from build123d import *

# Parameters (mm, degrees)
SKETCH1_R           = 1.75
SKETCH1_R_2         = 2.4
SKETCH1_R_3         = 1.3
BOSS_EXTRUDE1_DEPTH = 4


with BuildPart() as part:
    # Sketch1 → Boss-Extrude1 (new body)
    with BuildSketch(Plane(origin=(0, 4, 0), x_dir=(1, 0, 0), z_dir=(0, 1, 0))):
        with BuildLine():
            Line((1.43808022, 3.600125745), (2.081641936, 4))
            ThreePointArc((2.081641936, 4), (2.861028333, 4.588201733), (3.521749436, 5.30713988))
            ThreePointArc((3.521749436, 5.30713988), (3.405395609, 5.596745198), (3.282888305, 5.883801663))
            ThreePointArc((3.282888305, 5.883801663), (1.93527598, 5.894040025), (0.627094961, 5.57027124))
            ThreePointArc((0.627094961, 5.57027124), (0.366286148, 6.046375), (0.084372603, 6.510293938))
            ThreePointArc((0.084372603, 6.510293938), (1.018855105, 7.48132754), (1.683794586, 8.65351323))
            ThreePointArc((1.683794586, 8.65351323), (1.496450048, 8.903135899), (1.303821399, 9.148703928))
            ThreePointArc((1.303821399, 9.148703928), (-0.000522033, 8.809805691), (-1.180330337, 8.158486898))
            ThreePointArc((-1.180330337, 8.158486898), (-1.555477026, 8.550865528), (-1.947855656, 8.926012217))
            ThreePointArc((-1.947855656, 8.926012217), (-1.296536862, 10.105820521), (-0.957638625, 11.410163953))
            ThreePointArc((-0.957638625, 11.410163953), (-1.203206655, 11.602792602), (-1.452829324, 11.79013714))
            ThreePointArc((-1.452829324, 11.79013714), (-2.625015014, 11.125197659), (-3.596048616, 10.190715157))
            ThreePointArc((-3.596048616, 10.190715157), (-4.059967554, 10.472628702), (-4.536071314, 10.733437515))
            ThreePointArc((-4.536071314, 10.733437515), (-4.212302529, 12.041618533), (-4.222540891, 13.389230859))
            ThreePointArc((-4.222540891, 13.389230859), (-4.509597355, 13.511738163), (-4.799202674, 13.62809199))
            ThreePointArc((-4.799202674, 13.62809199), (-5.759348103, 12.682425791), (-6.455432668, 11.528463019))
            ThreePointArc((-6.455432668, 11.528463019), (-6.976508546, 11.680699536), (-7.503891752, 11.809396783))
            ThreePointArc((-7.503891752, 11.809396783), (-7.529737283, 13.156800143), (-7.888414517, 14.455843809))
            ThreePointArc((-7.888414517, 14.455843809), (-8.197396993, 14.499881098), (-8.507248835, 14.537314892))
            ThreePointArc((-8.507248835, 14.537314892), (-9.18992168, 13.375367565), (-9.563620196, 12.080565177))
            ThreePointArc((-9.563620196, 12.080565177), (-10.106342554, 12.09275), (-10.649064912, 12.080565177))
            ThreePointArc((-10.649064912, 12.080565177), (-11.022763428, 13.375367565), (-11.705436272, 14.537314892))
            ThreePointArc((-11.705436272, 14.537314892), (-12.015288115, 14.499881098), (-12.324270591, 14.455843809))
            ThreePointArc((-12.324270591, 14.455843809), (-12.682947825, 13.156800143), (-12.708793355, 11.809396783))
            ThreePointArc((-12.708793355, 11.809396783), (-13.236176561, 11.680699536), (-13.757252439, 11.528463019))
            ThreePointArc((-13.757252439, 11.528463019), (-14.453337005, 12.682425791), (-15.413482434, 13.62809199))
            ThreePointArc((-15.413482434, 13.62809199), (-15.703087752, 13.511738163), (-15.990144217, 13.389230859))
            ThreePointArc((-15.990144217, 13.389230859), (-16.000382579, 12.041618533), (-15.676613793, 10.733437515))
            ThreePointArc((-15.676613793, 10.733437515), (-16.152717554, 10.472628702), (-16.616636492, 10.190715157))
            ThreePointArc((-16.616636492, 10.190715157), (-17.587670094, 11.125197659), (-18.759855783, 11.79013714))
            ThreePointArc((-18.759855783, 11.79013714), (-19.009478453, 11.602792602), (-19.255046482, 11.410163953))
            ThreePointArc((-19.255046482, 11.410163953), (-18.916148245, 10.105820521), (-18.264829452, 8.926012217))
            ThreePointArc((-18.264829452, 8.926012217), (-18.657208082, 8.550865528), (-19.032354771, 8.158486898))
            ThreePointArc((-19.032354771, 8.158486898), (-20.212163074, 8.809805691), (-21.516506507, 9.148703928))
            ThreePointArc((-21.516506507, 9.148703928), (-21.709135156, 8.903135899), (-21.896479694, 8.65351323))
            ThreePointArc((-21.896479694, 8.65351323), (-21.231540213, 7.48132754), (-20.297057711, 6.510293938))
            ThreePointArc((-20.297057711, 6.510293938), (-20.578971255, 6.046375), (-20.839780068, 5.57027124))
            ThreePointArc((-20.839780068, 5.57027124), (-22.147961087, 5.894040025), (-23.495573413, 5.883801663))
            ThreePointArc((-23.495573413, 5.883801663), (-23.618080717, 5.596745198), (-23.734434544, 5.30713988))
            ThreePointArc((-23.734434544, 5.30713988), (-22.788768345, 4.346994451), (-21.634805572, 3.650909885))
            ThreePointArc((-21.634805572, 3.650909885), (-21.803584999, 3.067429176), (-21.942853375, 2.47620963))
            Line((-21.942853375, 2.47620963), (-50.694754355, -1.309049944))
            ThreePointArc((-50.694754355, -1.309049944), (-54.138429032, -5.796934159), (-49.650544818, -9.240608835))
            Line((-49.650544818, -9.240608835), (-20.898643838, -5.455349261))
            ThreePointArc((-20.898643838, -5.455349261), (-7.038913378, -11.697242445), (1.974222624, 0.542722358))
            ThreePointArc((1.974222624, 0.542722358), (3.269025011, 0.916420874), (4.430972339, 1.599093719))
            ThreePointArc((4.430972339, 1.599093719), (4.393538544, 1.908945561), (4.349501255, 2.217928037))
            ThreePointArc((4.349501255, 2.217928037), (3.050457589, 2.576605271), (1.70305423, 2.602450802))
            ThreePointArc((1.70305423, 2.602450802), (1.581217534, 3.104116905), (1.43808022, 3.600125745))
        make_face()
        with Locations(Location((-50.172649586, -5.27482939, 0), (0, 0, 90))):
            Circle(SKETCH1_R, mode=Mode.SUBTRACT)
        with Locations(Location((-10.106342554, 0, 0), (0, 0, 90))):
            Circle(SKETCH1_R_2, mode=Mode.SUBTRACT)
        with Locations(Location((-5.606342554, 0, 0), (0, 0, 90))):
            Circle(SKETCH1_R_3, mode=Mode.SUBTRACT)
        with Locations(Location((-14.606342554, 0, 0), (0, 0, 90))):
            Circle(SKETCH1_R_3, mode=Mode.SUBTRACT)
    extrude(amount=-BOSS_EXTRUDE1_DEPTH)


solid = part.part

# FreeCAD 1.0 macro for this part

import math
import FreeCAD as App
import Part
import Sketcher

V = App.Vector
Q = App.Units.Quantity

doc = App.newDocument("Part")
body = doc.addObject("PartDesign::Body", "Body")

# Sketch on XZ plane
sketch1 = doc.addObject("Sketcher::SketchObject", "Sketch")
body.addObject(sketch1)
sketch1.AttachmentSupport = (doc.XZ_Plane, [""])
sketch1.MapMode = "FlatFace"
sketch1.AttachmentOffset = App.Placement(V(0, 0, -4), App.Rotation())
sketch1.addGeometry(Part.LineSegment(V(1.43808, -3.600126, 0), V(2.081642, -4, 0)), False)
sketch1.addGeometry(Part.ArcOfCircle(Part.Circle(V(-0.768289, -8.586708, 0), V(0, 0, 1), 5.4), math.radians(37.396512), math.radians(58.14543)), False)
sketch1.addGeometry(Part.ArcOfCircle(Part.Circle(V(-10.106343, 0, 0), V(0, 0, 1), 14.625), math.radians(-23.722744), math.radians(-21.277256)), False)
sketch1.addGeometry(Part.ArcOfCircle(Part.Circle(V(2.568378, -0.531281, 0), V(0, 0, 1), 5.4), math.radians(-111.069299), math.radians(-82.396512)), False)
sketch1.addGeometry(Part.ArcOfCircle(Part.Circle(V(-10.106343, 0, 0), V(0, 0, 1), 12.09275), math.radians(-32.572297), math.radians(-27.427703)), False)
sketch1.addGeometry(Part.ArcOfCircle(Part.Circle(V(-3.308879, -10.710989, 0), V(0, 0, 1), 5.4), math.radians(22.396512), math.radians(51.069299)), False)
sketch1.addGeometry(Part.ArcOfCircle(Part.Circle(V(-10.106342, 0, 0), V(0, 0, 1), 14.625), math.radians(-38.722744), math.radians(-36.277256)), False)
sketch1.addGeometry(Part.ArcOfCircle(Part.Circle(V(1.998992, -3.793637, 0), V(0, 0, 1), 5.4), math.radians(-126.069299), math.radians(-97.396512)), False)
sketch1.addGeometry(Part.ArcOfCircle(Part.Circle(V(-10.106343, 0, 0), V(0, 0, 1), 12.09275), math.radians(-47.572297), math.radians(-42.427703)), False)
sketch1.addGeometry(Part.ArcOfCircle(Part.Circle(V(-6.312705, -12.105334, 0), V(0, 0, 1), 5.4), math.radians(7.396512), math.radians(36.069299)), False)
sketch1.addGeometry(Part.ArcOfCircle(Part.Circle(V(-10.106343, 0.000001, 0), V(0, 0, 1), 14.625001), math.radians(-53.722744), math.radians(-51.277256)), False)
sketch1.addGeometry(Part.ArcOfCircle(Part.Circle(V(0.604647, -6.797463, 0), V(0, 0, 1), 5.4), math.radians(-141.069299), math.radians(-112.396512)), False)
sketch1.addGeometry(Part.ArcOfCircle(Part.Circle(V(-10.106343, 0, 0), V(0, 0, 1), 12.09275), math.radians(-62.572297), math.radians(-57.427703)), False)
sketch1.addGeometry(Part.ArcOfCircle(Part.Circle(V(-9.575061, -12.674721, 0), V(0, 0, 1), 5.4), math.radians(-7.603488), math.radians(21.069299)), False)
sketch1.addGeometry(Part.ArcOfCircle(Part.Circle(V(-10.106342, -0.000001, 0), V(0, 0, 1), 14.624999), math.radians(-68.722744), math.radians(-66.277256)), False)
sketch1.addGeometry(Part.ArcOfCircle(Part.Circle(V(-1.519634, -9.338053, 0), V(0, 0, 1), 5.4), math.radians(-156.069299), math.radians(-127.396512)), False)
sketch1.addGeometry(Part.ArcOfCircle(Part.Circle(V(-10.106343, 0, 0), V(0, 0, 1), 12.09275), math.radians(-77.572297), math.radians(-72.427703)), False)
sketch1.addGeometry(Part.ArcOfCircle(Part.Circle(V(-12.873623, -12.380346, 0), V(0, 0, 1), 5.4), math.radians(-22.603488), math.radians(6.069299)), False)
sketch1.addGeometry(Part.ArcOfCircle(Part.Circle(V(-10.106342, -0.000002, 0), V(0, 0, 1), 14.624998), math.radians(-83.722744), math.radians(-81.277256)), False)
sketch1.addGeometry(Part.ArcOfCircle(Part.Circle(V(-4.229085, -11.242271, 0), V(0, 0, 1), 5.4), math.radians(-171.069299), math.radians(-142.396512)), False)
sketch1.addGeometry(Part.ArcOfCircle(Part.Circle(V(-10.106343, 0, 0), V(0, 0, 1), 12.09275), math.radians(-92.572297), math.radians(-87.427703)), False)
sketch1.addGeometry(Part.ArcOfCircle(Part.Circle(V(-15.9836, -11.242271, 0), V(0, 0, 1), 5.4), math.radians(-37.603488), math.radians(-8.930701)), False)
sketch1.addGeometry(Part.ArcOfCircle(Part.Circle(V(-10.106343, -0.000002, 0), V(0, 0, 1), 14.624998), math.radians(-98.722744), math.radians(-96.277256)), False)
sketch1.addGeometry(Part.ArcOfCircle(Part.Circle(V(-7.339062, -12.380346, 0), V(0, 0, 1), 5.4), math.radians(173.930701), math.radians(202.603488)), False)
sketch1.addGeometry(Part.ArcOfCircle(Part.Circle(V(-10.106343, 0, 0), V(0, 0, 1), 12.09275), math.radians(-107.572297), math.radians(-102.427703)), False)
sketch1.addGeometry(Part.ArcOfCircle(Part.Circle(V(-18.693051, -9.338053, 0), V(0, 0, 1), 5.4), math.radians(-52.603488), math.radians(-23.930701)), False)
sketch1.addGeometry(Part.ArcOfCircle(Part.Circle(V(-10.106342, 0, 0), V(0, 0, 1), 14.625), math.radians(-113.722744), math.radians(-111.277256)), False)
sketch1.addGeometry(Part.ArcOfCircle(Part.Circle(V(-10.637624, -12.674721, 0), V(0, 0, 1), 5.4), math.radians(158.930701), math.radians(187.603488)), False)
sketch1.addGeometry(Part.ArcOfCircle(Part.Circle(V(-10.106343, 0, 0), V(0, 0, 1), 12.09275), math.radians(-122.572297), math.radians(-117.427703)), False)
sketch1.addGeometry(Part.ArcOfCircle(Part.Circle(V(-20.817332, -6.797463, 0), V(0, 0, 1), 5.4), math.radians(-67.603488), math.radians(-38.930701)), False)
sketch1.addGeometry(Part.ArcOfCircle(Part.Circle(V(-10.106344, -0.000001, 0), V(0, 0, 1), 14.624998), math.radians(-128.722744), math.radians(-126.277256)), False)
sketch1.addGeometry(Part.ArcOfCircle(Part.Circle(V(-13.89998, -12.105334, 0), V(0, 0, 1), 5.4), math.radians(143.930701), math.radians(172.603488)), False)
sketch1.addGeometry(Part.ArcOfCircle(Part.Circle(V(-10.106342, 0, 0), V(0, 0, 1), 12.09275), math.radians(-137.572297), math.radians(-132.427703)), False)
sketch1.addGeometry(Part.ArcOfCircle(Part.Circle(V(-22.211677, -3.793637, 0), V(0, 0, 1), 5.4), math.radians(-82.603488), math.radians(-53.930701)), False)
sketch1.addGeometry(Part.ArcOfCircle(Part.Circle(V(-10.106343, 0, 0), V(0, 0, 1), 14.625), math.radians(-143.722744), math.radians(-141.277256)), False)
sketch1.addGeometry(Part.ArcOfCircle(Part.Circle(V(-16.903806, -10.710989, 0), V(0, 0, 1), 5.4), math.radians(128.930701), math.radians(157.603488)), False)
sketch1.addGeometry(Part.ArcOfCircle(Part.Circle(V(-10.106342, 0, 0), V(0, 0, 1), 12.092751), math.radians(-152.572297), math.radians(-147.427703)), False)
sketch1.addGeometry(Part.ArcOfCircle(Part.Circle(V(-22.781063, -0.531281, 0), V(0, 0, 1), 5.4), math.radians(-97.603488), math.radians(-68.930701)), False)
sketch1.addGeometry(Part.ArcOfCircle(Part.Circle(V(-10.106342, 0, 0), V(0, 0, 1), 14.625), math.radians(-158.722744), math.radians(-156.277256)), False)
sketch1.addGeometry(Part.ArcOfCircle(Part.Circle(V(-19.444396, -8.586708, 0), V(0, 0, 1), 5.4), math.radians(113.930701), math.radians(142.603488)), False)
sketch1.addGeometry(Part.ArcOfCircle(Part.Circle(V(-10.106343, 0, 0), V(0, 0, 1), 12.092749), math.radians(-168.184075), math.radians(-162.427702)), False)
sketch1.addGeometry(Part.LineSegment(V(-21.942853, -2.47621, 0), V(-50.694754, 1.30905, 0)), False)
sketch1.addGeometry(Part.ArcOfCircle(Part.Circle(V(-50.17265, 5.274829, 0), V(0, 0, 1), 4), math.radians(82.5), math.radians(262.5)), False)
sketch1.addGeometry(Part.LineSegment(V(-49.650545, 9.240609, 0), V(-20.898644, 5.455349, 0)), False)
sketch1.addGeometry(Part.ArcOfCircle(Part.Circle(V(-10.106343, 0, 0), V(0, 0, 1), 12.09275), math.radians(-2.572297), math.radians(153.184075)), False)
sketch1.addGeometry(Part.ArcOfCircle(Part.Circle(V(1.135928, -5.877257, 0), V(0, 0, 1), 5.4), math.radians(52.396512), math.radians(81.069299)), False)
sketch1.addGeometry(Part.ArcOfCircle(Part.Circle(V(-10.106343, 0, 0), V(0, 0, 1), 14.625), math.radians(-8.722744), math.radians(-6.277256)), False)
sketch1.addGeometry(Part.ArcOfCircle(Part.Circle(V(2.274003, 2.767281, 0), V(0, 0, 1), 5.4), math.radians(-96.069299), math.radians(-67.396512)), False)
sketch1.addGeometry(Part.ArcOfCircle(Part.Circle(V(-10.106343, 0, 0), V(0, 0, 1), 12.09275), math.radians(-17.320078), math.radians(-12.427703)), False)
sketch1.addGeometry(Part.Circle(V(-50.17265, 5.274829, 0), V(0, 0, 1), 1.75), False)
sketch1.addGeometry(Part.Circle(V(-14.606343, 0, 0), V(0, 0, 1), 1.3), False)
sketch1.addGeometry(Part.Circle(V(-10.106343, 0, 0), V(0, 0, 1), 2.4), False)
sketch1.addGeometry(Part.Circle(V(-5.606343, 0, 0), V(0, 0, 1), 1.3), False)
sketch1.addConstraint(Sketcher.Constraint("Tangent", 0, 2, 1, 2))
sketch1.addConstraint(Sketcher.Constraint("Coincident", 1, 1, 2, 2))
sketch1.addConstraint(Sketcher.Constraint("Coincident", 2, 1, 3, 2))
sketch1.addConstraint(Sketcher.Constraint("Coincident", 3, 1, 4, 2))
sketch1.addConstraint(Sketcher.Constraint("Coincident", 4, 1, 5, 2))
sketch1.addConstraint(Sketcher.Constraint("Coincident", 5, 1, 6, 2))
sketch1.addConstraint(Sketcher.Constraint("Coincident", 6, 1, 7, 2))
sketch1.addConstraint(Sketcher.Constraint("Coincident", 7, 1, 8, 2))
sketch1.addConstraint(Sketcher.Constraint("Coincident", 8, 1, 9, 2))
sketch1.addConstraint(Sketcher.Constraint("Coincident", 9, 1, 10, 2))
sketch1.addConstraint(Sketcher.Constraint("Coincident", 10, 1, 11, 2))
sketch1.addConstraint(Sketcher.Constraint("Coincident", 11, 1, 12, 2))
sketch1.addConstraint(Sketcher.Constraint("Coincident", 12, 1, 13, 2))
sketch1.addConstraint(Sketcher.Constraint("Coincident", 13, 1, 14, 2))
sketch1.addConstraint(Sketcher.Constraint("Coincident", 14, 1, 15, 2))
sketch1.addConstraint(Sketcher.Constraint("Coincident", 15, 1, 16, 2))
sketch1.addConstraint(Sketcher.Constraint("Coincident", 16, 1, 17, 2))
sketch1.addConstraint(Sketcher.Constraint("Coincident", 17, 1, 18, 2))
sketch1.addConstraint(Sketcher.Constraint("Coincident", 18, 1, 19, 2))
sketch1.addConstraint(Sketcher.Constraint("Coincident", 19, 1, 20, 2))
sketch1.addConstraint(Sketcher.Constraint("Coincident", 20, 1, 21, 2))
sketch1.addConstraint(Sketcher.Constraint("Coincident", 21, 1, 22, 2))
sketch1.addConstraint(Sketcher.Constraint("Coincident", 22, 1, 23, 2))
sketch1.addConstraint(Sketcher.Constraint("Coincident", 23, 1, 24, 2))
sketch1.addConstraint(Sketcher.Constraint("Coincident", 24, 1, 25, 2))
sketch1.addConstraint(Sketcher.Constraint("Coincident", 25, 1, 26, 2))
sketch1.addConstraint(Sketcher.Constraint("Coincident", 26, 1, 27, 2))
sketch1.addConstraint(Sketcher.Constraint("Coincident", 27, 1, 28, 2))
sketch1.addConstraint(Sketcher.Constraint("Coincident", 28, 1, 29, 2))
sketch1.addConstraint(Sketcher.Constraint("Coincident", 29, 1, 30, 2))
sketch1.addConstraint(Sketcher.Constraint("Coincident", 30, 1, 31, 2))
sketch1.addConstraint(Sketcher.Constraint("Coincident", 31, 1, 32, 2))
sketch1.addConstraint(Sketcher.Constraint("Coincident", 32, 1, 33, 2))
sketch1.addConstraint(Sketcher.Constraint("Coincident", 33, 1, 34, 2))
sketch1.addConstraint(Sketcher.Constraint("Coincident", 34, 1, 35, 2))
sketch1.addConstraint(Sketcher.Constraint("Coincident", 35, 1, 36, 2))
sketch1.addConstraint(Sketcher.Constraint("Coincident", 36, 1, 37, 2))
sketch1.addConstraint(Sketcher.Constraint("Coincident", 37, 1, 38, 2))
sketch1.addConstraint(Sketcher.Constraint("Coincident", 38, 1, 39, 2))
sketch1.addConstraint(Sketcher.Constraint("Coincident", 39, 1, 40, 2))
sketch1.addConstraint(Sketcher.Constraint("Coincident", 40, 1, 41, 1))
sketch1.addConstraint(Sketcher.Constraint("Tangent", 41, 2, 42, 2))
sketch1.addConstraint(Sketcher.Constraint("Tangent", 42, 1, 43, 1))
sketch1.addConstraint(Sketcher.Constraint("Coincident", 43, 2, 44, 2))
sketch1.addConstraint(Sketcher.Constraint("Coincident", 44, 1, 45, 2))
sketch1.addConstraint(Sketcher.Constraint("Coincident", 45, 1, 46, 2))
sketch1.addConstraint(Sketcher.Constraint("Coincident", 46, 1, 47, 2))
sketch1.addConstraint(Sketcher.Constraint("Coincident", 47, 1, 48, 2))
sketch1.addConstraint(Sketcher.Constraint("Coincident", 48, 1, 0, 1))
sketch1.addConstraint(Sketcher.Constraint("Coincident", 4, 3, 2, 3))
sketch1.addConstraint(Sketcher.Constraint("Coincident", 6, 3, 2, 3))
sketch1.addConstraint(Sketcher.Constraint("Coincident", 8, 3, 2, 3))
sketch1.addConstraint(Sketcher.Constraint("Coincident", 10, 3, 2, 3))
sketch1.addConstraint(Sketcher.Constraint("Coincident", 12, 3, 2, 3))
sketch1.addConstraint(Sketcher.Constraint("Coincident", 14, 3, 2, 3))
sketch1.addConstraint(Sketcher.Constraint("Coincident", 16, 3, 2, 3))
sketch1.addConstraint(Sketcher.Constraint("Coincident", 18, 3, 2, 3))
sketch1.addConstraint(Sketcher.Constraint("Coincident", 20, 3, 2, 3))
sketch1.addConstraint(Sketcher.Constraint("Coincident", 22, 3, 2, 3))
sketch1.addConstraint(Sketcher.Constraint("Coincident", 24, 3, 2, 3))
sketch1.addConstraint(Sketcher.Constraint("Coincident", 26, 3, 2, 3))
sketch1.addConstraint(Sketcher.Constraint("Coincident", 28, 3, 2, 3))
sketch1.addConstraint(Sketcher.Constraint("Coincident", 30, 3, 2, 3))
sketch1.addConstraint(Sketcher.Constraint("Coincident", 32, 3, 2, 3))
sketch1.addConstraint(Sketcher.Constraint("Coincident", 34, 3, 2, 3))
sketch1.addConstraint(Sketcher.Constraint("Coincident", 36, 3, 2, 3))
sketch1.addConstraint(Sketcher.Constraint("Coincident", 38, 3, 2, 3))
sketch1.addConstraint(Sketcher.Constraint("Coincident", 40, 3, 2, 3))
sketch1.addConstraint(Sketcher.Constraint("Coincident", 44, 3, 2, 3))
sketch1.addConstraint(Sketcher.Constraint("Coincident", 46, 3, 2, 3))
sketch1.addConstraint(Sketcher.Constraint("Coincident", 48, 3, 2, 3))
sketch1.addConstraint(Sketcher.Constraint("Coincident", 49, 3, 42, 3))
sketch1.addConstraint(Sketcher.Constraint("Coincident", 51, 3, 2, 3))
sketch1.addConstraint(Sketcher.Constraint("Equal", 1, 3))
sketch1.addConstraint(Sketcher.Constraint("Equal", 3, 5))
sketch1.addConstraint(Sketcher.Constraint("Equal", 2, 6))
sketch1.addConstraint(Sketcher.Constraint("Equal", 5, 7))
sketch1.addConstraint(Sketcher.Constraint("Equal", 4, 8))
sketch1.addConstraint(Sketcher.Constraint("Equal", 7, 9))
sketch1.addConstraint(Sketcher.Constraint("Equal", 6, 10))
sketch1.addConstraint(Sketcher.Constraint("Equal", 9, 11))
sketch1.addConstraint(Sketcher.Constraint("Equal", 8, 12))
sketch1.addConstraint(Sketcher.Constraint("Equal", 11, 13))
sketch1.addConstraint(Sketcher.Constraint("Equal", 6, 14))
sketch1.addConstraint(Sketcher.Constraint("Equal", 13, 15))
sketch1.addConstraint(Sketcher.Constraint("Equal", 12, 16))
sketch1.addConstraint(Sketcher.Constraint("Equal", 15, 17))
sketch1.addConstraint(Sketcher.Constraint("Equal", 14, 18))
sketch1.addConstraint(Sketcher.Constraint("Equal", 17, 19))
sketch1.addConstraint(Sketcher.Constraint("Equal", 16, 20))
sketch1.addConstraint(Sketcher.Constraint("Equal", 19, 21))
sketch1.addConstraint(Sketcher.Constraint("Equal", 18, 22))
sketch1.addConstraint(Sketcher.Constraint("Equal", 21, 23))
sketch1.addConstraint(Sketcher.Constraint("Equal", 20, 24))
sketch1.addConstraint(Sketcher.Constraint("Equal", 23, 25))
sketch1.addConstraint(Sketcher.Constraint("Equal", 14, 26))
sketch1.addConstraint(Sketcher.Constraint("Equal", 25, 27))
sketch1.addConstraint(Sketcher.Constraint("Equal", 24, 28))
sketch1.addConstraint(Sketcher.Constraint("Equal", 27, 29))
sketch1.addConstraint(Sketcher.Constraint("Equal", 26, 30))
sketch1.addConstraint(Sketcher.Constraint("Equal", 29, 31))
sketch1.addConstraint(Sketcher.Constraint("Equal", 28, 32))
sketch1.addConstraint(Sketcher.Constraint("Equal", 31, 33))
sketch1.addConstraint(Sketcher.Constraint("Equal", 30, 34))
sketch1.addConstraint(Sketcher.Constraint("Equal", 33, 35))
sketch1.addConstraint(Sketcher.Constraint("Equal", 32, 36))
sketch1.addConstraint(Sketcher.Constraint("Equal", 35, 37))
sketch1.addConstraint(Sketcher.Constraint("Equal", 34, 38))
sketch1.addConstraint(Sketcher.Constraint("Equal", 37, 39))
sketch1.addConstraint(Sketcher.Constraint("Equal", 36, 40))
sketch1.addConstraint(Sketcher.Constraint("Equal", 40, 44))
sketch1.addConstraint(Sketcher.Constraint("Equal", 39, 45))
sketch1.addConstraint(Sketcher.Constraint("Equal", 38, 46))
sketch1.addConstraint(Sketcher.Constraint("Equal", 45, 47))
sketch1.addConstraint(Sketcher.Constraint("Equal", 44, 48))
sketch1.addConstraint(Sketcher.Constraint("Equal", 50, 52))
sketch1.addConstraint(Sketcher.Constraint("PointOnObject", 2, 3, -1))
sketch1.addConstraint(Sketcher.Constraint("PointOnObject", 50, 3, -1))
sketch1.addConstraint(Sketcher.Constraint("PointOnObject", 52, 3, -1))
sketch1.addConstraint(Sketcher.Constraint("Parallel", 41, 43))
sketch1.addConstraint(Sketcher.Constraint("Horizontal", 19, 3, 21, 3))
sketch1.addConstraint(Sketcher.Constraint("Horizontal", 17, 3, 23, 3))
sketch1.addConstraint(Sketcher.Constraint("Horizontal", 15, 3, 25, 3))
sketch1.addConstraint(Sketcher.Constraint("Horizontal", 13, 3, 27, 3))
sketch1.addConstraint(Sketcher.Constraint("Horizontal", 11, 3, 29, 3))
sketch1.addConstraint(Sketcher.Constraint("Horizontal", 9, 3, 31, 3))
sketch1.addConstraint(Sketcher.Constraint("Horizontal", 7, 3, 33, 3))
sketch1.addConstraint(Sketcher.Constraint("Horizontal", 5, 3, 35, 3))
sketch1.addConstraint(Sketcher.Constraint("Horizontal", 3, 3, 37, 3))
sketch1.addConstraint(Sketcher.Constraint("Horizontal", 1, 3, 39, 3))
sketch1.addConstraint(Sketcher.Constraint("Horizontal", 19, 1, 20, 1))
sketch1.addConstraint(Sketcher.Constraint("Horizontal", 17, 1, 22, 1))
sketch1.addConstraint(Sketcher.Constraint("Horizontal", 15, 1, 24, 1))
sketch1.addConstraint(Sketcher.Constraint("Horizontal", 13, 1, 26, 1))
sketch1.addConstraint(Sketcher.Constraint("Horizontal", 11, 1, 28, 1))
sketch1.addConstraint(Sketcher.Constraint("Horizontal", 9, 1, 30, 1))
sketch1.addConstraint(Sketcher.Constraint("Horizontal", 7, 1, 32, 1))
sketch1.addConstraint(Sketcher.Constraint("Horizontal", 5, 1, 34, 1))
sketch1.addConstraint(Sketcher.Constraint("Horizontal", 3, 1, 36, 1))
sketch1.addConstraint(Sketcher.Constraint("Horizontal", 1, 1, 38, 1))
sketch1.addConstraint(Sketcher.Constraint("Equal", 41, 43))
sketch1.addConstraint(Sketcher.Constraint("Radius", 42, Q("4 mm")))
sketch1.addConstraint(Sketcher.Constraint("Diameter", 49, Q("3.5 mm")))
sketch1.addConstraint(Sketcher.Constraint("Diameter", 50, Q("2.6 mm")))
sketch1.addConstraint(Sketcher.Constraint("Diameter", 51, Q("4.8 mm")))
sketch1.addConstraint(Sketcher.Constraint("Radius", 1, Q("5.4 mm")))
sketch1.addConstraint(Sketcher.Constraint("Distance", 41, Q("29 mm")))
sketch1.addConstraint(Sketcher.Constraint("DistanceY", 0, 2, -1, 1, Q("4 mm")))
sketch1.addConstraint(Sketcher.Constraint("Angle", 41, Q("172.5 deg")))
sketch1.addConstraint(Sketcher.Constraint("Radius", 2, Q("14.625 mm")))
sketch1.addConstraint(Sketcher.Constraint("Radius", 4, Q("12.09275 mm")))
sketch1.addConstraint(Sketcher.Constraint("DistanceX", 21, 3, -1, 1, Q("15.9836 mm")))
sketch1.addConstraint(Sketcher.Constraint("DistanceY", 2, 1, -1, 1, Q("5.883802 mm")))
sketch1.addConstraint(Sketcher.Constraint("DistanceX", -1, 1, 46, 1, Q("4.349501 mm")))
sketch1.addConstraint(Sketcher.Constraint("DistanceX", 1, 3, -1, 1, Q("0.768289 mm")))
sketch1.addConstraint(Sketcher.Constraint("DistanceY", 1, 3, -1, 1, Q("8.586708 mm")))
sketch1.addConstraint(Sketcher.Constraint("DistanceY", 3, 3, -1, 1, Q("0.531281 mm")))
sketch1.addConstraint(Sketcher.Constraint("DistanceX", 5, 3, -1, 1, Q("3.308879 mm")))
sketch1.addConstraint(Sketcher.Constraint("DistanceY", 5, 3, -1, 1, Q("10.710989 mm")))
sketch1.addConstraint(Sketcher.Constraint("DistanceX", -1, 1, 7, 3, Q("1.998992 mm")))
sketch1.addConstraint(Sketcher.Constraint("DistanceX", 13, 3, -1, 1, Q("9.575061 mm")))
sketch1.addConstraint(Sketcher.Constraint("DistanceY", 13, 3, -1, 1, Q("12.674721 mm")))
sketch1.addConstraint(Sketcher.Constraint("DistanceY", 19, 3, -1, 1, Q("11.242271 mm")))
sketch1.addConstraint(Sketcher.Constraint("DistanceX", 23, 3, -1, 1, Q("7.339062 mm")))
sketch1.addConstraint(Sketcher.Constraint("DistanceX", 25, 3, -1, 1, Q("18.693051 mm")))
sketch1.addConstraint(Sketcher.Constraint("DistanceX", 29, 3, -1, 1, Q("20.817332 mm")))
sketch1.addConstraint(Sketcher.Constraint("DistanceX", 31, 3, -1, 1, Q("13.89998 mm")))
sketch1.addConstraint(Sketcher.Constraint("DistanceX", 42, 3, -1, 1, Q("50.17265 mm")))
sketch1.addConstraint(Sketcher.Constraint("DistanceX", -1, 1, 45, 3, Q("1.135928 mm")))
sketch1.addConstraint(Sketcher.Constraint("DistanceY", -1, 1, 47, 3, Q("2.767281 mm")))
sketch1.addConstraint(Sketcher.Constraint("DistanceX", -1, 1, 6, 1, Q("1.303821 mm")))
sketch1.addConstraint(Sketcher.Constraint("DistanceX", 9, 1, -1, 1, Q("0.957639 mm")))
sketch1.addConstraint(Sketcher.Constraint("DistanceX", 10, 1, -1, 1, Q("1.452829 mm")))
sketch1.addConstraint(Sketcher.Constraint("DistanceY", 14, 1, -1, 1, Q("13.628092 mm")))
sketch1.addConstraint(Sketcher.Constraint("DistanceX", 16, 1, -1, 1, Q("7.503892 mm")))
sketch1.addConstraint(Sketcher.Constraint("DistanceY", 45, 3, -1, 1, Q("5.877257 mm")))
sketch1.addConstraint(Sketcher.Constraint("DistanceX", 50, 3, -1, 1, Q("14.606343 mm")))
sketch1.addConstraint(Sketcher.Constraint("DistanceX", 52, 3, -1, 1, Q("5.606343 mm")))
pad1 = doc.addObject("PartDesign::Pad", "Pad")
body.addObject(pad1)
pad1.Profile = sketch1
pad1.Length = 4

doc.recompute()
